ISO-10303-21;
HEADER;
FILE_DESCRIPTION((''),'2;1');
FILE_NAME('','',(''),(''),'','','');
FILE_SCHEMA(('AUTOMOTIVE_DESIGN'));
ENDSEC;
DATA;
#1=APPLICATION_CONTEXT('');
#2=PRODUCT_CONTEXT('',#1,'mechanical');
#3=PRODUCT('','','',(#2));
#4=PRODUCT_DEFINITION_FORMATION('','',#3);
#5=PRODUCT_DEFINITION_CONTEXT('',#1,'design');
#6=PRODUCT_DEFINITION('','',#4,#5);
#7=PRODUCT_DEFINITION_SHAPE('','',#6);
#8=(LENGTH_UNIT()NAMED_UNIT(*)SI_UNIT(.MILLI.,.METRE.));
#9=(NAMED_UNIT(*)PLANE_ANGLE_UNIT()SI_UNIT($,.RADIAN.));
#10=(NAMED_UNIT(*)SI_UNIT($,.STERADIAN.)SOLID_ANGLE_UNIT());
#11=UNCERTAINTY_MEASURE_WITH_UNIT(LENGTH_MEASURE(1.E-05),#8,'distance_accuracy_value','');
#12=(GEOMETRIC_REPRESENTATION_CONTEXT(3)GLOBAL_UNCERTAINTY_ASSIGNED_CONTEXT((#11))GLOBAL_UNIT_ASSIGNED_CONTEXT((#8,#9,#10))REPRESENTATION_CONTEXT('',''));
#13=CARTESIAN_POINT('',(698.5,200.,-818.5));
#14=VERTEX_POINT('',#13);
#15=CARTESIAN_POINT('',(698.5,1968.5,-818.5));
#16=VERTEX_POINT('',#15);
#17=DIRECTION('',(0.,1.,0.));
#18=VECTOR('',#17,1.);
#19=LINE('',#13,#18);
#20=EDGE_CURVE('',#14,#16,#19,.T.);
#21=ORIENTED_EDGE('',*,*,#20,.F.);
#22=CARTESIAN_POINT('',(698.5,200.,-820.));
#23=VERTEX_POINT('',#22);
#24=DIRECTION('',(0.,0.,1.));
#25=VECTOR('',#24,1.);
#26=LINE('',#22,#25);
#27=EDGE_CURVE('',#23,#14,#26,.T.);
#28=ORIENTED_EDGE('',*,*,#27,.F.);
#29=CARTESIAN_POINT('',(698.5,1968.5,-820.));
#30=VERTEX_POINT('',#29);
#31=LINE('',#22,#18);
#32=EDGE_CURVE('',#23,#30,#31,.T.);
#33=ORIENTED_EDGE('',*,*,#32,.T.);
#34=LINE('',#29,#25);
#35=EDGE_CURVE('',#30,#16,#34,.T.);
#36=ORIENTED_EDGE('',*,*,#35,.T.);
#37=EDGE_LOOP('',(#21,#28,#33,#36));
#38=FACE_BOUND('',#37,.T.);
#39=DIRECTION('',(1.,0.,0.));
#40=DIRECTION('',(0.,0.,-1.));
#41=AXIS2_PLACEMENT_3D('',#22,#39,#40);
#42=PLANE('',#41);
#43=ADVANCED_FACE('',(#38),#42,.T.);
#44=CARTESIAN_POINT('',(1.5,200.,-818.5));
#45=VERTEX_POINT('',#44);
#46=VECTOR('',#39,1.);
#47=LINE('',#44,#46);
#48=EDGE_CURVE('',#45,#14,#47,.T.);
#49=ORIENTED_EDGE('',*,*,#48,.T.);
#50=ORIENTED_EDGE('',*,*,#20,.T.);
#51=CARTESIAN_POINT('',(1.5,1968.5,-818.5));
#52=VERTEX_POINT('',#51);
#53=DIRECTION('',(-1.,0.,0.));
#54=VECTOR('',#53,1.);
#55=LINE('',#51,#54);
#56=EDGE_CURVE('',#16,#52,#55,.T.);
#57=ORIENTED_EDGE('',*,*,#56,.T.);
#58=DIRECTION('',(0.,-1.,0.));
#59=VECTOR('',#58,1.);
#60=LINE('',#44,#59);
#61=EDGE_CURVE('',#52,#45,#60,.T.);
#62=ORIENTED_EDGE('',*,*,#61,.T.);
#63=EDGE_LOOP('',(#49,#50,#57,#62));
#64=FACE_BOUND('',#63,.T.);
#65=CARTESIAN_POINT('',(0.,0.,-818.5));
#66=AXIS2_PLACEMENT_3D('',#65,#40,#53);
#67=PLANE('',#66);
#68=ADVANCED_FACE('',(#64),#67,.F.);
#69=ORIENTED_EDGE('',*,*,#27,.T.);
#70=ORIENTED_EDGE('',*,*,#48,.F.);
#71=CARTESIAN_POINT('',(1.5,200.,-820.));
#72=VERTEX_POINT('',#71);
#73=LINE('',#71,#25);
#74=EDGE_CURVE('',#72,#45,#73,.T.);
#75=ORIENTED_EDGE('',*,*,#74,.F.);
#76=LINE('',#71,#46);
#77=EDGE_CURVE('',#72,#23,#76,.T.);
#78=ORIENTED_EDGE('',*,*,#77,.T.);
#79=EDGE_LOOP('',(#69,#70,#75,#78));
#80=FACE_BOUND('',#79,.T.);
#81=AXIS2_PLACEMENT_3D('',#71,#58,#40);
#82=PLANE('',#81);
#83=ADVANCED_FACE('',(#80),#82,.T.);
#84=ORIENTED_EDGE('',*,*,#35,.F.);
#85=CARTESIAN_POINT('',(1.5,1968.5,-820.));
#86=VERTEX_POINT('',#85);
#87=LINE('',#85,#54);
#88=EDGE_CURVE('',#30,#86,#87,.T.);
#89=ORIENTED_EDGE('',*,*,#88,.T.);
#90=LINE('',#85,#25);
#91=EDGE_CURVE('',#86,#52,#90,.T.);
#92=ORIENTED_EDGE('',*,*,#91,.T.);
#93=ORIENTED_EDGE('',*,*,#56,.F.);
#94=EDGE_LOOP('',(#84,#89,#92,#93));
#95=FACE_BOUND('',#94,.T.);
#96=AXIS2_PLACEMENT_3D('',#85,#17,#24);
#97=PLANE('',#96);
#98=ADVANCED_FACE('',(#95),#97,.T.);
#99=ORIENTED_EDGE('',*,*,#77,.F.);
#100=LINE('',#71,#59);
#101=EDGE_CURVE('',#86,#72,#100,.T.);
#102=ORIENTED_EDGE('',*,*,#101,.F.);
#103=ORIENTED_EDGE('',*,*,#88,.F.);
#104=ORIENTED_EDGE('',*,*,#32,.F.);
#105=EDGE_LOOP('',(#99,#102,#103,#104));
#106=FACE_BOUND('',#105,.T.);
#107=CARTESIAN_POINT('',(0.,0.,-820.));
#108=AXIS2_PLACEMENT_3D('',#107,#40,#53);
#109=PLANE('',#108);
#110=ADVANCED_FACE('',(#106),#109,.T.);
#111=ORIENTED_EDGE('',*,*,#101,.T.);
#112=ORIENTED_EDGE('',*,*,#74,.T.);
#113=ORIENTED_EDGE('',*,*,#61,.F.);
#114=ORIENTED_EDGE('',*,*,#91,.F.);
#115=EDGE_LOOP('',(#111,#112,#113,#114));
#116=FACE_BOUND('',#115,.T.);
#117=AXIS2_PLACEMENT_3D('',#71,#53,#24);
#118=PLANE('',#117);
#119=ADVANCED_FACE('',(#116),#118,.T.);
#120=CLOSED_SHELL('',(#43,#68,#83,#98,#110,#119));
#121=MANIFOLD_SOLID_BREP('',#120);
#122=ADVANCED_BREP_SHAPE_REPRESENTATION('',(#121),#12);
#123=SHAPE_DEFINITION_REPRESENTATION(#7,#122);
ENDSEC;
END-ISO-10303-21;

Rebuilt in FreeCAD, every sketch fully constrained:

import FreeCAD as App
import Part
import Sketcher
from FreeCAD import Vector
Q = App.Units.Quantity

doc = App.newDocument("Part")
params = doc.addObject("Spreadsheet::Sheet", "Params")
for row, (alias, value) in enumerate([
    ("sketch1_width", "697 mm"),
    ("sketch1_height", "1768.5 mm"),
    ("pad1_length", "1.5 mm"),
], start=1):
    params.set(f"A{row}", alias)
    params.set(f"B{row}", "=" + value)
    params.setAlias(f"B{row}", alias)

body = doc.addObject("PartDesign::Body", "Body")

# Sketch on XY plane
sketch1 = body.newObject("Sketcher::SketchObject", "Sketch")
sketch1.AttachmentSupport = (doc.getObject("XY_Plane"), [""])
sketch1.MapMode = "FlatFace"
sketch1.AttachmentOffset = App.Placement(Vector(0, 0, -818.5), App.Rotation())
sketch1.addGeometry(Part.LineSegment(Vector(2, 1968, 0), Vector(2, 200, 0)), False)
sketch1.addGeometry(Part.LineSegment(Vector(2, 200, 0), Vector(698, 200, 0)), False)
sketch1.addGeometry(Part.LineSegment(Vector(698, 200, 0), Vector(698, 1968, 0)), False)
sketch1.addGeometry(Part.LineSegment(Vector(698, 1968, 0), Vector(2, 1968, 0)), False)
sketch1.addConstraint(Sketcher.Constraint("Coincident", 0, 2, 1, 1))
sketch1.addConstraint(Sketcher.Constraint("Coincident", 1, 2, 2, 1))
sketch1.addConstraint(Sketcher.Constraint("Coincident", 2, 2, 3, 1))
sketch1.addConstraint(Sketcher.Constraint("Coincident", 3, 2, 0, 1))
sketch1.addConstraint(Sketcher.Constraint("Vertical", 0))
sketch1.addConstraint(Sketcher.Constraint("Horizontal", 1))
sketch1.addConstraint(Sketcher.Constraint("Vertical", 2))
sketch1.addConstraint(Sketcher.Constraint("Horizontal", 3))
sketch1.addConstraint(Sketcher.Constraint("DistanceX", 1, 1, 1, 2, Q("697 mm")))
sketch1.addConstraint(Sketcher.Constraint("DistanceY", 0, 2, 0, 1, Q("1768.5 mm")))
sketch1.addConstraint(Sketcher.Constraint("DistanceY", -1, 1, 0, 2, Q("200 mm")))
sketch1.addConstraint(Sketcher.Constraint("DistanceX", -1, 1, 0, 2, Q("1.5 mm")))
sketch1.setExpression("Constraints[8]", "Params.sketch1_width")
sketch1.setExpression("Constraints[9]", "Params.sketch1_height")
pad1 = body.newObject("PartDesign::Pad", "Pad")
pad1.Profile = sketch1
pad1.setExpression("Length", "Params.pad1_length")
pad1.Reversed = True

doc.recompute()
